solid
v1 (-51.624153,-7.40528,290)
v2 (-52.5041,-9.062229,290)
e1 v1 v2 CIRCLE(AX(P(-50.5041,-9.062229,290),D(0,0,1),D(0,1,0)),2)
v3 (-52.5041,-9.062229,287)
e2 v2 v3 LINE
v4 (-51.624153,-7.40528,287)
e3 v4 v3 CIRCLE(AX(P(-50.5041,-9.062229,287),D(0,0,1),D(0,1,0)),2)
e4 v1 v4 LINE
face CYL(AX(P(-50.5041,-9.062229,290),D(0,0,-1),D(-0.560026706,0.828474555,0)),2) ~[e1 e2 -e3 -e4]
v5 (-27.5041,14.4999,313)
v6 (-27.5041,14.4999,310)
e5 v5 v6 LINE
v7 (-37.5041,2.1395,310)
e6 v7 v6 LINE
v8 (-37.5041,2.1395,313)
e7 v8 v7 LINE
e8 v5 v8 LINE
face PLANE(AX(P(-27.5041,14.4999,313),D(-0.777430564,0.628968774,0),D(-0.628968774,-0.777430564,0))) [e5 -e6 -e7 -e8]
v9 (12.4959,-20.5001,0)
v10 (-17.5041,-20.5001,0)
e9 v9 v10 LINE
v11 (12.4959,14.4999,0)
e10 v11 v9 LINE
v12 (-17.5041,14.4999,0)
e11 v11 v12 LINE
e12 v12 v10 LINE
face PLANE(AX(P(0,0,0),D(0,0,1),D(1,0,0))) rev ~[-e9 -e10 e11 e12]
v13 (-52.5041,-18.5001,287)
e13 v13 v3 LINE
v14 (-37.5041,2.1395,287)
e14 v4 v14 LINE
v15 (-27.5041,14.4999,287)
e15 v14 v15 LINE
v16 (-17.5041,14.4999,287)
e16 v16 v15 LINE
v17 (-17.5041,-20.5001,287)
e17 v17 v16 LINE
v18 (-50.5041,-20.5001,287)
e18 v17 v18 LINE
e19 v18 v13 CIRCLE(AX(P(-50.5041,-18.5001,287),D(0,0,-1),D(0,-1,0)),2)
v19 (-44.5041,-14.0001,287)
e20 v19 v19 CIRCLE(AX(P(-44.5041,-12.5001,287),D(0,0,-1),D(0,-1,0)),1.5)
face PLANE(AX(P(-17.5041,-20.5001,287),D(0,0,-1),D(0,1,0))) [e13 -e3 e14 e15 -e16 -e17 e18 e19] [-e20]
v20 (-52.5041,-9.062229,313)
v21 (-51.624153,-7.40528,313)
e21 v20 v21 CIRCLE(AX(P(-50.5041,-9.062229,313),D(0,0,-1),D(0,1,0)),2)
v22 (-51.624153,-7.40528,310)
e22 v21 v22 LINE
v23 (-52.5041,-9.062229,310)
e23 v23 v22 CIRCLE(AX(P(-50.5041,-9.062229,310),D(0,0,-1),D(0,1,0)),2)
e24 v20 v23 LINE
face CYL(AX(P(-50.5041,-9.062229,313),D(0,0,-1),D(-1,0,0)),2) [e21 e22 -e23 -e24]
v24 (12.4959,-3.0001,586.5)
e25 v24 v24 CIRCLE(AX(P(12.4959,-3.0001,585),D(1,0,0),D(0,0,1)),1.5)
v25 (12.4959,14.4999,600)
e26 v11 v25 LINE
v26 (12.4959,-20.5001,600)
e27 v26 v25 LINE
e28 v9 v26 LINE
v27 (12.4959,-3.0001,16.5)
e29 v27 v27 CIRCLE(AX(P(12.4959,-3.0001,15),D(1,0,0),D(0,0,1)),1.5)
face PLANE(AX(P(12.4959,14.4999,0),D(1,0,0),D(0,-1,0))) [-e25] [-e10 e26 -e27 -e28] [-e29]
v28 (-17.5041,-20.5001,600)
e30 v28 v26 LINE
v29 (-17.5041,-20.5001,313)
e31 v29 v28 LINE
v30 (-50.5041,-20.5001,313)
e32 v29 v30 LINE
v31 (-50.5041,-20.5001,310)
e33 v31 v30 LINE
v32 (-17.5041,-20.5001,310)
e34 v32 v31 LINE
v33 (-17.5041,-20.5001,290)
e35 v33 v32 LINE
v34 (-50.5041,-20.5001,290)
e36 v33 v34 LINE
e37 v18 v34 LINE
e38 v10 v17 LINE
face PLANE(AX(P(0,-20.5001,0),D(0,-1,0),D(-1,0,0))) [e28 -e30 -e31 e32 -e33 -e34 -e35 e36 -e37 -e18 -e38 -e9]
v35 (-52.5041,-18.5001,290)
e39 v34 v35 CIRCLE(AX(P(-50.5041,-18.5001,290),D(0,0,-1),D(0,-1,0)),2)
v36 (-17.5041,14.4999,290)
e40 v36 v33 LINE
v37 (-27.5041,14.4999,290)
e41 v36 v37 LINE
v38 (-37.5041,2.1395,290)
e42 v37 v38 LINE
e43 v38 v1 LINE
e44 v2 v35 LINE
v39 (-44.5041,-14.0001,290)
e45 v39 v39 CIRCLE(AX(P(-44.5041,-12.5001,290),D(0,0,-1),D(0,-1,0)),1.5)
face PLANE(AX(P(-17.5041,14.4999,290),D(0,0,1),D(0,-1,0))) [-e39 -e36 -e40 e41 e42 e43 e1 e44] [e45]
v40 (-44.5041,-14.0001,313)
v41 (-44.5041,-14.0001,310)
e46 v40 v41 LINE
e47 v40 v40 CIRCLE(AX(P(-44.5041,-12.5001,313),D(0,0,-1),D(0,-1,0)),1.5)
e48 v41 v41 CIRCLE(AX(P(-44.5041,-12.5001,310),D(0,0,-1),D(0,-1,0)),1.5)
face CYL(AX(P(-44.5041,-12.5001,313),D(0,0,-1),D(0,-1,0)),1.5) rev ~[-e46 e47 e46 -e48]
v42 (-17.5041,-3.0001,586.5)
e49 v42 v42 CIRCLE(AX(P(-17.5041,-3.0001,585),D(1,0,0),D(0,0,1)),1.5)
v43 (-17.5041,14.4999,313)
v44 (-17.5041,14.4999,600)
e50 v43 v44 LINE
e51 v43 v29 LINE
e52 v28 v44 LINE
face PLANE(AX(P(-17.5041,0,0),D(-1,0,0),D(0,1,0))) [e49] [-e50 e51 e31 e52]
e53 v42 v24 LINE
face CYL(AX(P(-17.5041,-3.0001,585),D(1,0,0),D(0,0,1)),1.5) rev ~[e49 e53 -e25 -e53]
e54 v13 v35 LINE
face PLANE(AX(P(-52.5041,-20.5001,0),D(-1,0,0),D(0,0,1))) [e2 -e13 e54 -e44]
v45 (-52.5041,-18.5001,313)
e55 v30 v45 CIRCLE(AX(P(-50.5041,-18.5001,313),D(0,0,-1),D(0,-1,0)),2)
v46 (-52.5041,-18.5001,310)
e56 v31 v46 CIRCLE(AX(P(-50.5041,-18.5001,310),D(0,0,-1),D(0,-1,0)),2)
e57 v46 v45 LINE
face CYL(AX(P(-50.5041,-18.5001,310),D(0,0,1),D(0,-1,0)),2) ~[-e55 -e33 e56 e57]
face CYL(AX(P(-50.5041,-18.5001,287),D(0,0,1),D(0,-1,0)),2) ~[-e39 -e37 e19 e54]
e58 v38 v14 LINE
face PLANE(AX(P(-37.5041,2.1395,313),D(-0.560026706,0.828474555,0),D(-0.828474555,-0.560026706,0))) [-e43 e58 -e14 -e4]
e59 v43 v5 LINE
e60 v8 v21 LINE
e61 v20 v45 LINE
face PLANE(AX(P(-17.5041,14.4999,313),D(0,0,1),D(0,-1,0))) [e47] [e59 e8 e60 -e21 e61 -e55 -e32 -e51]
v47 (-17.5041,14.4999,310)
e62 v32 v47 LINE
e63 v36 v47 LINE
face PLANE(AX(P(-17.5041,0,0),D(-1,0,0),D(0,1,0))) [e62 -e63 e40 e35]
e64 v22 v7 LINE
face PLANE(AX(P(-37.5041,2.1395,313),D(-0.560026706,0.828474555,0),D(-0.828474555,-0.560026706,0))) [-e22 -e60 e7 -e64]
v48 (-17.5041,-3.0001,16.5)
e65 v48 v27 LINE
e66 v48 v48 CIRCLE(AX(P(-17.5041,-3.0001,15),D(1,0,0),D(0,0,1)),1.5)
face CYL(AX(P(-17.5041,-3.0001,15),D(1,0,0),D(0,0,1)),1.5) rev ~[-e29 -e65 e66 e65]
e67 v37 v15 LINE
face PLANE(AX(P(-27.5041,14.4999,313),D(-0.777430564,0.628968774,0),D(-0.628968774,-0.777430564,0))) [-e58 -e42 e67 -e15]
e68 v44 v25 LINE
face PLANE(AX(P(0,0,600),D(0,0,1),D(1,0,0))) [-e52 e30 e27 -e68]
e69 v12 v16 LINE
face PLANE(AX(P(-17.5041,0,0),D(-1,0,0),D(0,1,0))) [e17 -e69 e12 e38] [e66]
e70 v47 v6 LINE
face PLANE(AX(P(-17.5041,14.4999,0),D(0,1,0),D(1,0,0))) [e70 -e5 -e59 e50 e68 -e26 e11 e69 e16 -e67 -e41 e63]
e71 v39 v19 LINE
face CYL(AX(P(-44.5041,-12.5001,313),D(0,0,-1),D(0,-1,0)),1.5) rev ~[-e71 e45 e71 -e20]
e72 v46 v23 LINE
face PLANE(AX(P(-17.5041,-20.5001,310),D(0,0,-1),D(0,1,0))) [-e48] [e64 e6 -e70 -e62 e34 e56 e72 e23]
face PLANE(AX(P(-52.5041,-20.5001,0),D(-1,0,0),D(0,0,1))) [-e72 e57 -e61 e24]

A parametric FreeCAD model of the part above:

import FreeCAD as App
import Part
import Sketcher
Q = App.Units.Quantity


def edges_at(feature, points):
    """Names of the edges that pass closest to the given points."""
    edges = feature.Shape.Edges
    near = lambda p: min(range(len(edges)), key=lambda i: edges[i].distToShape(Part.Vertex(*p))[0])
    return sorted({f"Edge{near(p) + 1}" for p in points})

doc = App.newDocument("Part")
params = doc.addObject("Spreadsheet::Sheet", "Params")
for row, (alias, value) in enumerate([
    ("sketch1_width", "30 mm"),
    ("sketch1_height", "35 mm"),
    ("pad1_length", "600 mm"),
    ("sketch2_width", "35 mm"),
    ("sketch2_height", "3 mm"),
    ("pad2_length", "35 mm"),
    ("sketch3_width", "25 mm"),
    ("sketch3_height", "22.5 mm"),
    ("pocket1_length", "50 mm"),
    ("fillet_radius", "2 mm"),
    ("sketch4_diameter", "3 mm"),
    ("hole_diameter", "3 mm"),
    ("sketch5_diameter", "3 mm"),
    ("hole2_diameter", "3 mm"),
    ("hole2_depth", "30 mm"),
], start=1):
    params.set(f"A{row}", alias)
    params.set(f"B{row}", "=" + value)
    params.setAlias(f"B{row}", alias)

body = doc.addObject("PartDesign::Body", "Body")

# Sketch on XY plane
sketch1 = body.newObject("Sketcher::SketchObject", "Sketch")
sketch1.AttachmentSupport = (doc.getObject("XY_Plane"), [""])
sketch1.MapMode = "FlatFace"
sketch1.addGeometry(Part.LineSegment(App.Vector(-18, 14, 0), App.Vector(-18, -21, 0)), False)
sketch1.addGeometry(Part.LineSegment(App.Vector(-18, -21, 0), App.Vector(12, -21, 0)), False)
sketch1.addGeometry(Part.LineSegment(App.Vector(12, -21, 0), App.Vector(12, 14, 0)), False)
sketch1.addGeometry(Part.LineSegment(App.Vector(12, 14, 0), App.Vector(-18, 14, 0)), False)
sketch1.addConstraint(Sketcher.Constraint("Coincident", 0, 2, 1, 1))
sketch1.addConstraint(Sketcher.Constraint("Coincident", 1, 2, 2, 1))
sketch1.addConstraint(Sketcher.Constraint("Coincident", 2, 2, 3, 1))
sketch1.addConstraint(Sketcher.Constraint("Coincident", 3, 2, 0, 1))
sketch1.addConstraint(Sketcher.Constraint("Vertical", 0))
sketch1.addConstraint(Sketcher.Constraint("Horizontal", 1))
sketch1.addConstraint(Sketcher.Constraint("Vertical", 2))
sketch1.addConstraint(Sketcher.Constraint("Horizontal", 3))
sketch1.addConstraint(Sketcher.Constraint("DistanceX", 1, 1, 1, 2, Q("30 mm")))
sketch1.addConstraint(Sketcher.Constraint("DistanceY", 0, 2, 0, 1, Q("35 mm")))
sketch1.addConstraint(Sketcher.Constraint("DistanceY", 0, 2, -1, 1, Q("20.5 mm")))
sketch1.addConstraint(Sketcher.Constraint("DistanceX", 0, 2, -1, 1, Q("17.504 mm")))
sketch1.setExpression("Constraints[8]", "Params.sketch1_width")
sketch1.setExpression("Constraints[9]", "Params.sketch1_height")
pad1 = body.newObject("PartDesign::Pad", "Pad")
pad1.Profile = sketch1
pad1.setExpression("Length", "Params.pad1_length")

# Sketch on YZ plane
sketch2 = body.newObject("Sketcher::SketchObject", "Sketch001")
sketch2.AttachmentSupport = (doc.getObject("YZ_Plane"), [""])
sketch2.MapMode = "FlatFace"
sketch2.AttachmentOffset = App.Placement(App.Vector(0, 0, -17.5041), App.Rotation())
sketch2.addGeometry(Part.LineSegment(App.Vector(14.5, 287, 0), App.Vector(-20.5, 287, 0)), False)
sketch2.addGeometry(Part.LineSegment(App.Vector(-20.5, 287, 0), App.Vector(-20.5, 290, 0)), False)
sketch2.addGeometry(Part.LineSegment(App.Vector(-20.5, 290, 0), App.Vector(14.5, 290, 0)), False)
sketch2.addGeometry(Part.LineSegment(App.Vector(14.5, 290, 0), App.Vector(14.5, 287, 0)), False)
sketch2.addGeometry(Part.LineSegment(App.Vector(14.5, 310, 0), App.Vector(-20.5, 310, 0)), False)
sketch2.addGeometry(Part.LineSegment(App.Vector(-20.5, 310, 0), App.Vector(-20.5, 313, 0)), False)
sketch2.addGeometry(Part.LineSegment(App.Vector(-20.5, 313, 0), App.Vector(14.5, 313, 0)), False)
sketch2.addGeometry(Part.LineSegment(App.Vector(14.5, 313, 0), App.Vector(14.5, 310, 0)), False)
sketch2.addConstraint(Sketcher.Constraint("Coincident", 0, 2, 1, 1))
sketch2.addConstraint(Sketcher.Constraint("Coincident", 1, 2, 2, 1))
sketch2.addConstraint(Sketcher.Constraint("Coincident", 2, 2, 3, 1))
sketch2.addConstraint(Sketcher.Constraint("Coincident", 3, 2, 0, 1))
sketch2.addConstraint(Sketcher.Constraint("Coincident", 4, 2, 5, 1))
sketch2.addConstraint(Sketcher.Constraint("Coincident", 5, 2, 6, 1))
sketch2.addConstraint(Sketcher.Constraint("Coincident", 6, 2, 7, 1))
sketch2.addConstraint(Sketcher.Constraint("Coincident", 7, 2, 4, 1))
sketch2.addConstraint(Sketcher.Constraint("Horizontal", 0))
sketch2.addConstraint(Sketcher.Constraint("Vertical", 1))
sketch2.addConstraint(Sketcher.Constraint("Horizontal", 2))
sketch2.addConstraint(Sketcher.Constraint("Vertical", 3))
sketch2.addConstraint(Sketcher.Constraint("Horizontal", 4))
sketch2.addConstraint(Sketcher.Constraint("Vertical", 5))
sketch2.addConstraint(Sketcher.Constraint("Horizontal", 6))
sketch2.addConstraint(Sketcher.Constraint("Vertical", 7))
sketch2.addConstraint(Sketcher.Constraint("Vertical", 1, 2, 4, 2))
sketch2.addConstraint(Sketcher.Constraint("Vertical", 3, 2, 6, 2))
sketch2.addConstraint(Sketcher.Constraint("Equal", 3, 5))
sketch2.addConstraint(Sketcher.Constraint("DistanceX", 0, 2, 0, 1, Q("35 mm")))
sketch2.addConstraint(Sketcher.Constraint("DistanceY", 1, 1, 1, 2, Q("3 mm")))
sketch2.addConstraint(Sketcher.Constraint("DistanceY", -1, 1, 0, 2, Q("287 mm")))
sketch2.addConstraint(Sketcher.Constraint("DistanceY", 1, 2, 4, 2, Q("20 mm")))
sketch2.addConstraint(Sketcher.Constraint("DistanceX", 0, 2, -1, 1, Q("20.5 mm")))
sketch2.setExpression("Constraints[19]", "Params.sketch2_width")
sketch2.setExpression("Constraints[20]", "Params.sketch2_height")
pad2 = body.newObject("PartDesign::Pad", "Pad001")
pad2.Profile = sketch2
pad2.setExpression("Length", "Params.pad2_length")
pad2.Reversed = True

# Sketch on XY plane
sketch3 = body.newObject("Sketcher::SketchObject", "Sketch002")
sketch3.AttachmentSupport = (doc.getObject("XY_Plane"), [""])
sketch3.MapMode = "FlatFace"
sketch3.AttachmentOffset = App.Placement(App.Vector(0, 0, 313), App.Rotation())
sketch3.addGeometry(Part.LineSegment(App.Vector(-38, 2, 0), App.Vector(-28, 14, 0)), False)
sketch3.addGeometry(Part.LineSegment(App.Vector(-28, 14, 0), App.Vector(-53, 14, 0)), False)
sketch3.addGeometry(Part.LineSegment(App.Vector(-53, 14, 0), App.Vector(-53, -8, 0)), False)
sketch3.addGeometry(Part.LineSegment(App.Vector(-53, -8, 0), App.Vector(-38, 2, 0)), False)
sketch3.addConstraint(Sketcher.Constraint("Coincident", 0, 2, 1, 1))
sketch3.addConstraint(Sketcher.Constraint("Coincident", 1, 2, 2, 1))
sketch3.addConstraint(Sketcher.Constraint("Coincident", 2, 2, 3, 1))
sketch3.addConstraint(Sketcher.Constraint("Coincident", 3, 2, 0, 1))
sketch3.addConstraint(Sketcher.Constraint("Horizontal", 1))
sketch3.addConstraint(Sketcher.Constraint("Vertical", 2))
sketch3.addConstraint(Sketcher.Constraint("DistanceX", 1, 2, 1, 1, Q("25 mm")))
sketch3.addConstraint(Sketcher.Constraint("DistanceY", 2, 2, 2, 1, Q("22.5 mm")))
sketch3.addConstraint(Sketcher.Constraint("DistanceX", 2, 2, 3, 2, Q("15 mm")))
sketch3.addConstraint(Sketcher.Constraint("DistanceY", 2, 2, -1, 1, Q("8 mm")))
sketch3.addConstraint(Sketcher.Constraint("Distance", 0, Q("15.899 mm")))
sketch3.addConstraint(Sketcher.Constraint("DistanceX", 0, 2, -1, 1, Q("27.504 mm")))
sketch3.setExpression("Constraints[6]", "Params.sketch3_width")
sketch3.setExpression("Constraints[7]", "Params.sketch3_height")
pocket1 = body.newObject("PartDesign::Pocket", "Pocket")
pocket1.Profile = sketch3
pocket1.setExpression("Length", "Params.pocket1_length")
doc.recompute()

fillet = body.newObject("PartDesign::Fillet", "Fillet")
fillet.Base = (pocket1, edges_at(pocket1, [
    (-52.504, -8, 288.5),
    (-52.504, -8, 311.5),
    (-52.504, -20.5, 288.5),
    (-52.504, -20.5, 311.5),
]))
fillet.setExpression("Radius", "Params.fillet_radius")

# Sketch on XY plane
sketch4 = body.newObject("Sketcher::SketchObject", "Sketch003")
sketch4.AttachmentSupport = (doc.getObject("XY_Plane"), [""])
sketch4.MapMode = "FlatFace"
sketch4.AttachmentOffset = App.Placement(App.Vector(0, 0, 313), App.Rotation())
sketch4.addGeometry(Part.Circle(App.Vector(-44.5, -12.5, 0), App.Vector(0, 0, 1), 1.5), False)
sketch4.addConstraint(Sketcher.Constraint("Diameter", 0, Q("3 mm")))
sketch4.addConstraint(Sketcher.Constraint("DistanceY", 0, 3, -1, 1, Q("12.5 mm")))
sketch4.addConstraint(Sketcher.Constraint("DistanceX", 0, 3, -1, 1, Q("44.504 mm")))
sketch4.setExpression("Constraints[0]", "Params.sketch4_diameter")
doc.recompute()
hole = body.newObject("PartDesign::Hole", "Hole")
hole.Profile = sketch4
hole.ThreadType = "None"
hole.setExpression("Diameter", "Params.hole_diameter")
hole.DepthType = "ThroughAll"

# Sketch on YZ plane
sketch5 = body.newObject("Sketcher::SketchObject", "Sketch004")
sketch5.AttachmentSupport = (doc.getObject("YZ_Plane"), [""])
sketch5.MapMode = "FlatFace"
sketch5.AttachmentOffset = App.Placement(App.Vector(0, 0, -17.5041), App.Rotation())
sketch5.addGeometry(Part.Circle(App.Vector(-3, 15, 0), App.Vector(0, 0, 1), 1.5), False)
sketch5.addGeometry(Part.Circle(App.Vector(-3, 585, 0), App.Vector(0, 0, 1), 1.5), False)
sketch5.addConstraint(Sketcher.Constraint("Equal", 0, 1))
sketch5.addConstraint(Sketcher.Constraint("Vertical", 0, 3, 1, 3))
sketch5.addConstraint(Sketcher.Constraint("Diameter", 0, Q("3 mm")))
sketch5.addConstraint(Sketcher.Constraint("DistanceX", 0, 3, -1, 1, Q("3 mm")))
sketch5.addConstraint(Sketcher.Constraint("DistanceY", -1, 1, 0, 3, Q("15 mm")))
sketch5.addConstraint(Sketcher.Constraint("DistanceY", -1, 1, 1, 3, Q("585 mm")))
sketch5.setExpression("Constraints[2]", "Params.sketch5_diameter")
doc.recompute()
hole2 = body.newObject("PartDesign::Hole", "Hole001")
hole2.Profile = sketch5
hole2.ThreadType = "None"
hole2.setExpression("Diameter", "Params.hole2_diameter")
hole2.DepthType = "Dimension"
hole2.setExpression("Depth", "Params.hole2_depth")
hole2.DrillPoint = "Angled"
hole2.DrillPointAngle = 118
hole2.Reversed = True

doc.recompute()
